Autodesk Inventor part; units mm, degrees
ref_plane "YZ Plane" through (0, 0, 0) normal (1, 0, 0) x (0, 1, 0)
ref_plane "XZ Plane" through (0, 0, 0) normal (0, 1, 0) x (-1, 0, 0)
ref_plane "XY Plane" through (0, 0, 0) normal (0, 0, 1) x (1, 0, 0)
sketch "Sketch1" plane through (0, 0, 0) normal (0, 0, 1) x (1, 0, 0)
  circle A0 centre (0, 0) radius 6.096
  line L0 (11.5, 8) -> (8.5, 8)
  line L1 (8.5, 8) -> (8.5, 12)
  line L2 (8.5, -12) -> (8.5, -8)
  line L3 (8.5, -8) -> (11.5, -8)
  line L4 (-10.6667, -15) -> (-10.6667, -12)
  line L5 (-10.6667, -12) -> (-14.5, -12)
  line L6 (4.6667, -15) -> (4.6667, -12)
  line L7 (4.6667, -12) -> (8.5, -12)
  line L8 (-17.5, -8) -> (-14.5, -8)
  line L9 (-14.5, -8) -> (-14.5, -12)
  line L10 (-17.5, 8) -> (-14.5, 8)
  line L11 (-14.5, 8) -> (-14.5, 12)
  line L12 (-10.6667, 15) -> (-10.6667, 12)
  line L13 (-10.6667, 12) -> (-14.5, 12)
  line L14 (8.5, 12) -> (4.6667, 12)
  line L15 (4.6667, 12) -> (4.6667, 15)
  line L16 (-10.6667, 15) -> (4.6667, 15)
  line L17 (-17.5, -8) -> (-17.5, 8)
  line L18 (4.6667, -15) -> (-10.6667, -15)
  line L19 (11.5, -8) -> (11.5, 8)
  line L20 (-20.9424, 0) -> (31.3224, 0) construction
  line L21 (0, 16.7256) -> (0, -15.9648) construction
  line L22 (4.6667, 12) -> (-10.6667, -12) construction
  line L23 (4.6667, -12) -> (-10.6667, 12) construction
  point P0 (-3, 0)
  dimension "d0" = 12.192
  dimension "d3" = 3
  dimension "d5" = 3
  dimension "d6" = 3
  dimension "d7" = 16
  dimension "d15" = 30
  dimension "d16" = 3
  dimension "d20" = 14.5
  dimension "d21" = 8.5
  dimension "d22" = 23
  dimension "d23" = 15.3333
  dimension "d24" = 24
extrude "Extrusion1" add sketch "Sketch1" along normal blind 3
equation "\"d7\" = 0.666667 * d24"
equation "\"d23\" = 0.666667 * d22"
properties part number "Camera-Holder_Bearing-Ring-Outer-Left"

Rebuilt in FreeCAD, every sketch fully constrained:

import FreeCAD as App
import Part
import Sketcher

V = App.Vector
Q = App.Units.Quantity


def add_polygon(sketch, points):
    """Adds a closed chain of lines whose ends are joined by coincident constraints."""
    first, n = sketch.GeometryCount, len(points)
    for a, b in zip(points, points[1:] + points[:1]):
        sketch.addGeometry(Part.LineSegment(App.Vector(*a, 0), App.Vector(*b, 0)), False)
    for i in range(n):
        sketch.addConstraint(Sketcher.Constraint("Coincident", first + i, 2, first + (i + 1) % n, 1))

doc = App.newDocument("Part")
params = doc.addObject("Spreadsheet::Sheet", "Params")
for row, (alias, value) in enumerate([
    ("sketch1_width", "3 mm"),
    ("sketch1_height", "16 mm"),
    ("sketch1_height2", "4 mm"),
    ("pad1_length", "3 mm"),
], start=1):
    params.set(f"A{row}", alias)
    params.set(f"B{row}", "=" + value)
    params.setAlias(f"B{row}", alias)

body = doc.addObject("PartDesign::Body", "Body")

# Sketch on XY plane
sketch1 = body.newObject("Sketcher::SketchObject", "Sketch")
sketch1.AttachmentSupport = (doc.getObject("XY_Plane"), [""])
sketch1.MapMode = "FlatFace"
add_polygon(sketch1, [(11.5, -8), (11.5, 8), (8.5, 8), (8.5, 12), (4.7, 12), (4.7, 15), (-10.7, 15), (-10.7, 12), (-14.5, 12), (-14.5, 8), (-17.5, 8), (-17.5, -8), (-14.5, -8), (-14.5, -12), (-10.7, -12), (-10.7, -15), (4.7, -15), (4.7, -12), (8.5, -12), (8.5, -8)])  # lines 0-19
sketch1.addGeometry(Part.Circle(V(0, 0, 0), V(0, 0, 1), 6.1), False)  # 20
sketch1.addConstraint(Sketcher.Constraint("Vertical", 0))
sketch1.addConstraint(Sketcher.Constraint("Horizontal", 1))
sketch1.addConstraint(Sketcher.Constraint("Vertical", 2))
sketch1.addConstraint(Sketcher.Constraint("Horizontal", 3))
sketch1.addConstraint(Sketcher.Constraint("Vertical", 4))
sketch1.addConstraint(Sketcher.Constraint("Horizontal", 5))
sketch1.addConstraint(Sketcher.Constraint("Vertical", 6))
sketch1.addConstraint(Sketcher.Constraint("Horizontal", 7))
sketch1.addConstraint(Sketcher.Constraint("Vertical", 8))
sketch1.addConstraint(Sketcher.Constraint("Horizontal", 9))
sketch1.addConstraint(Sketcher.Constraint("Vertical", 10))
sketch1.addConstraint(Sketcher.Constraint("Horizontal", 11))
sketch1.addConstraint(Sketcher.Constraint("Vertical", 12))
sketch1.addConstraint(Sketcher.Constraint("Horizontal", 13))
sketch1.addConstraint(Sketcher.Constraint("Vertical", 14))
sketch1.addConstraint(Sketcher.Constraint("Horizontal", 15))
sketch1.addConstraint(Sketcher.Constraint("Vertical", 16))
sketch1.addConstraint(Sketcher.Constraint("Horizontal", 17))
sketch1.addConstraint(Sketcher.Constraint("Vertical", 18))
sketch1.addConstraint(Sketcher.Constraint("Horizontal", 19))
sketch1.addConstraint(Sketcher.Constraint("Coincident", 20, 3, -1, 1))
sketch1.addConstraint(Sketcher.Constraint("Symmetric", 8, 2, 11, 2, -1))
sketch1.addConstraint(Sketcher.Constraint("Symmetric", 6, 2, 13, 2, -1))
sketch1.addConstraint(Sketcher.Constraint("Symmetric", 4, 2, 15, 2, -1))
sketch1.addConstraint(Sketcher.Constraint("Symmetric", 2, 2, 17, 2, -1))
sketch1.addConstraint(Sketcher.Constraint("Horizontal", 3, 2, 6, 2))
sketch1.addConstraint(Sketcher.Constraint("Horizontal", 1, 2, 8, 2))
sketch1.addConstraint(Sketcher.Constraint("Horizontal", 11, 2, 18, 2))
sketch1.addConstraint(Sketcher.Constraint("Equal", 3, 7))
sketch1.addConstraint(Sketcher.Constraint("Equal", 1, 9))
sketch1.addConstraint(Sketcher.Constraint("Equal", 19, 4))
sketch1.addConstraint(Sketcher.Constraint("DistanceX", 1, 2, 1, 1, Q("3 mm")))
sketch1.addConstraint(Sketcher.Constraint("DistanceY", 0, 1, 0, 2, Q("16 mm")))
sketch1.addConstraint(Sketcher.Constraint("Diameter", 20, Q("12.192 mm")))
sketch1.addConstraint(Sketcher.Constraint("DistanceX", -1, 1, 1, 2, Q("8.5 mm")))
sketch1.addConstraint(Sketcher.Constraint("DistanceX", 7, 2, -1, 1, Q("14.5 mm")))
sketch1.addConstraint(Sketcher.Constraint("DistanceY", 2, 1, 2, 2, Q("4 mm")))
sketch1.addConstraint(Sketcher.Constraint("DistanceX", 5, 2, 5, 1, Q("15.3334 mm")))
sketch1.setExpression("Constraints[51]", "Params.sketch1_width")
sketch1.setExpression("Constraints[52]", "Params.sketch1_height")
sketch1.setExpression("Constraints[56]", "Params.sketch1_height2")
pad1 = body.newObject("PartDesign::Pad", "Pad")
pad1.Profile = sketch1
pad1.setExpression("Length", "Params.pad1_length")

doc.recompute()
